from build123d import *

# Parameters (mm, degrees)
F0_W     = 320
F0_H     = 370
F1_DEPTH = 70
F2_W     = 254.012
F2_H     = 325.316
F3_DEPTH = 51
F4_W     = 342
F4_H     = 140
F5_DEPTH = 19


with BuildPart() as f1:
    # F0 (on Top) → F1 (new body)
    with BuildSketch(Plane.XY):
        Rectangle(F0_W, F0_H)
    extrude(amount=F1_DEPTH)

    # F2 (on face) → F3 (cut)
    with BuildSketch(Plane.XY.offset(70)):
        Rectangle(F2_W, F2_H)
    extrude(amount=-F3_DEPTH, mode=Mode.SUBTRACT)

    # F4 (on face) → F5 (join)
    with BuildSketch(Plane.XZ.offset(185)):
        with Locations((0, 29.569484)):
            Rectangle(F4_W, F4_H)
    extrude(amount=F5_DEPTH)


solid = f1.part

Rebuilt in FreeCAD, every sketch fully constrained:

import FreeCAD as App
import Part
import Sketcher


def add_polygon(sketch, points):
    """Adds a closed chain of lines whose ends are joined by coincident constraints."""
    first, n = sketch.GeometryCount, len(points)
    for a, b in zip(points, points[1:] + points[:1]):
        sketch.addGeometry(Part.LineSegment(App.Vector(*a, 0), App.Vector(*b, 0)), False)
    for i in range(n):
        sketch.addConstraint(Sketcher.Constraint("Coincident", first + i, 2, first + (i + 1) % n, 1))

doc = App.newDocument("Part")
params = doc.addObject("Spreadsheet::Sheet", "Params")
for row, (alias, value) in enumerate([
    ("sketch1_width", "320 mm"),
    ("sketch1_height", "370 mm"),
    ("pad1_length", "70 mm"),
    ("pocket1_length", "51 mm"),
    ("sketch3_width", "342 mm"),
    ("sketch3_height", "140 mm"),
    ("pad2_length", "19 mm"),
], start=1):
    params.set(f"A{row}", alias)
    params.set(f"B{row}", "=" + value)
    params.setAlias(f"B{row}", alias)

body = doc.addObject("PartDesign::Body", "Body")

sketch1 = doc.addObject("Sketcher::SketchObject", "Sketch")
body.addObject(sketch1)
sketch1.AttachmentSupport = (doc.XY_Plane, [""])
sketch1.MapMode = "FlatFace"
add_polygon(sketch1, [(-160, 185), (-160, -185), (160, -185), (160, 185)])
sketch1.addConstraint([
    Sketcher.Constraint("Vertical", 0),
    Sketcher.Constraint("Horizontal", 1),
    Sketcher.Constraint("Vertical", 2),
    Sketcher.Constraint("Horizontal", 3),
    Sketcher.Constraint("Symmetric", 0, 2, 2, 2, -1, 1),
    Sketcher.Constraint("DistanceX", 1, 1, 1, 2, 320.0),
    Sketcher.Constraint("DistanceY", 0, 2, 0, 1, 370.0),
])
sketch1.setExpression("Constraints[9]", "Params.sketch1_width")
sketch1.setExpression("Constraints[10]", "Params.sketch1_height")
pad1 = doc.addObject("PartDesign::Pad", "Pad")
body.addObject(pad1)
pad1.Profile = sketch1
pad1.setExpression("Length", "Params.pad1_length")

sketch2 = doc.addObject("Sketcher::SketchObject", "Sketch001")
body.addObject(sketch2)
sketch2.AttachmentSupport = (doc.XY_Plane, [""])
sketch2.MapMode = "FlatFace"
sketch2.AttachmentOffset = App.Placement(App.Vector(0, 0, 70), App.Rotation())
add_polygon(sketch2, [(-127, 163), (-127, -163), (127, -163), (127, 163)])
sketch2.addConstraint([
    Sketcher.Constraint("Vertical", 0),
    Sketcher.Constraint("Horizontal", 1),
    Sketcher.Constraint("Vertical", 2),
    Sketcher.Constraint("Horizontal", 3),
    Sketcher.Constraint("Symmetric", 0, 2, 2, 2, -1, 1),
    Sketcher.Constraint("DistanceX", 1, 1, 1, 2, 254.012),
    Sketcher.Constraint("DistanceY", 0, 2, 0, 1, 325.316),
])
pocket1 = doc.addObject("PartDesign::Pocket", "Pocket")
body.addObject(pocket1)
pocket1.Profile = sketch2
pocket1.setExpression("Length", "Params.pocket1_length")

sketch3 = doc.addObject("Sketcher::SketchObject", "Sketch002")
body.addObject(sketch3)
sketch3.AttachmentSupport = (doc.XZ_Plane, [""])
sketch3.MapMode = "FlatFace"
sketch3.AttachmentOffset = App.Placement(App.Vector(0, 0, 185), App.Rotation())
add_polygon(sketch3, [(-171, 100), (-171, -40), (171, -40), (171, 100)])
sketch3.addConstraint([
    Sketcher.Constraint("Vertical", 0),
    Sketcher.Constraint("Horizontal", 1),
    Sketcher.Constraint("Vertical", 2),
    Sketcher.Constraint("Horizontal", 3),
    Sketcher.Constraint("DistanceX", 1, 1, 1, 2, 342.0),
    Sketcher.Constraint("DistanceY", 0, 2, 0, 1, 140.0),
    Sketcher.Constraint("DistanceX", 0, 2, -1, 1, 171.0),
    Sketcher.Constraint("DistanceY", 0, 2, -1, 1, 40.430516),
])
sketch3.setExpression("Constraints[8]", "Params.sketch3_width")
sketch3.setExpression("Constraints[9]", "Params.sketch3_height")
pad2 = doc.addObject("PartDesign::Pad", "Pad001")
body.addObject(pad2)
pad2.Profile = sketch3
pad2.setExpression("Length", "Params.pad2_length")

doc.recompute()
